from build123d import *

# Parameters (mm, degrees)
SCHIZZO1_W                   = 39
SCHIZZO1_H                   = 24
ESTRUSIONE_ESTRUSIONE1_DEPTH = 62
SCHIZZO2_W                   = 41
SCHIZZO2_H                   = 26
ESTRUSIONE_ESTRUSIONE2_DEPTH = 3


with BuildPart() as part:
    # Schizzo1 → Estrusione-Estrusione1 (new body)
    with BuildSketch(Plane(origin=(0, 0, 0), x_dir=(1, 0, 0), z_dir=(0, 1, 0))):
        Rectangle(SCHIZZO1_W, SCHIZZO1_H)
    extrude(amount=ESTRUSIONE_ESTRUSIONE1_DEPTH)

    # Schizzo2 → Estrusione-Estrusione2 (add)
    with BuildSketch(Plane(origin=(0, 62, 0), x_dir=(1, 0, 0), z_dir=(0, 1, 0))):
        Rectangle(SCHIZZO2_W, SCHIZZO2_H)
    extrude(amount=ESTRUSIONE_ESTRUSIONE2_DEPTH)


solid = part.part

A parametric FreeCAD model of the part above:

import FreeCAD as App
import Part
import Sketcher

doc = App.newDocument("Part")
body = doc.addObject("PartDesign::Body", "Body")

sketch1 = doc.addObject("Sketcher::SketchObject", "Sketch")
body.addObject(sketch1)
sketch1.AttachmentSupport = (doc.XZ_Plane, [""])
sketch1.MapMode = "FlatFace"
sketch1.addGeometry(Part.LineSegment(App.Vector(-20, -12, 0), App.Vector(-20, 12, 0)), False)
sketch1.addGeometry(Part.LineSegment(App.Vector(-20, 12, 0), App.Vector(20, 12, 0)), False)
sketch1.addGeometry(Part.LineSegment(App.Vector(20, 12, 0), App.Vector(20, -12, 0)), False)
sketch1.addGeometry(Part.LineSegment(App.Vector(20, -12, 0), App.Vector(-20, -12, 0)), False)
sketch1.addConstraint(Sketcher.Constraint("Coincident", 0, 2, 1, 1))
sketch1.addConstraint(Sketcher.Constraint("Coincident", 1, 2, 2, 1))
sketch1.addConstraint(Sketcher.Constraint("Coincident", 2, 2, 3, 1))
sketch1.addConstraint(Sketcher.Constraint("Coincident", 3, 2, 0, 1))
sketch1.addConstraint(Sketcher.Constraint("Vertical", 0))
sketch1.addConstraint(Sketcher.Constraint("Horizontal", 1))
sketch1.addConstraint(Sketcher.Constraint("Vertical", 2))
sketch1.addConstraint(Sketcher.Constraint("Horizontal", 3))
sketch1.addConstraint(Sketcher.Constraint("Symmetric", 0, 2, 2, 2, -1, 1))
sketch1.addConstraint(Sketcher.Constraint("DistanceX", 1, 1, 1, 2, 39.0))
sketch1.addConstraint(Sketcher.Constraint("DistanceY", 0, 1, 0, 2, 24.0))
pad1 = doc.addObject("PartDesign::Pad", "Pad")
body.addObject(pad1)
pad1.Profile = sketch1
pad1.Length = 62
pad1.Reversed = True

sketch2 = doc.addObject("Sketcher::SketchObject", "Sketch001")
body.addObject(sketch2)
sketch2.AttachmentSupport = (doc.XZ_Plane, [""])
sketch2.MapMode = "FlatFace"
sketch2.AttachmentOffset = App.Placement(App.Vector(0, 0, -62), App.Rotation())
sketch2.addGeometry(Part.LineSegment(App.Vector(-20, -13, 0), App.Vector(-20, 13, 0)), False)
sketch2.addGeometry(Part.LineSegment(App.Vector(-20, 13, 0), App.Vector(20, 13, 0)), False)
sketch2.addGeometry(Part.LineSegment(App.Vector(20, 13, 0), App.Vector(20, -13, 0)), False)
sketch2.addGeometry(Part.LineSegment(App.Vector(20, -13, 0), App.Vector(-20, -13, 0)), False)
sketch2.addConstraint(Sketcher.Constraint("Coincident", 0, 2, 1, 1))
sketch2.addConstraint(Sketcher.Constraint("Coincident", 1, 2, 2, 1))
sketch2.addConstraint(Sketcher.Constraint("Coincident", 2, 2, 3, 1))
sketch2.addConstraint(Sketcher.Constraint("Coincident", 3, 2, 0, 1))
sketch2.addConstraint(Sketcher.Constraint("Vertical", 0))
sketch2.addConstraint(Sketcher.Constraint("Horizontal", 1))
sketch2.addConstraint(Sketcher.Constraint("Vertical", 2))
sketch2.addConstraint(Sketcher.Constraint("Horizontal", 3))
sketch2.addConstraint(Sketcher.Constraint("Symmetric", 0, 2, 2, 2, -1, 1))
sketch2.addConstraint(Sketcher.Constraint("DistanceX", 1, 1, 1, 2, 41.0))
sketch2.addConstraint(Sketcher.Constraint("DistanceY", 0, 1, 0, 2, 26.0))
pad2 = doc.addObject("PartDesign::Pad", "Pad001")
body.addObject(pad2)
pad2.Profile = sketch2
pad2.Length = 3
pad2.Reversed = True

doc.recompute()
